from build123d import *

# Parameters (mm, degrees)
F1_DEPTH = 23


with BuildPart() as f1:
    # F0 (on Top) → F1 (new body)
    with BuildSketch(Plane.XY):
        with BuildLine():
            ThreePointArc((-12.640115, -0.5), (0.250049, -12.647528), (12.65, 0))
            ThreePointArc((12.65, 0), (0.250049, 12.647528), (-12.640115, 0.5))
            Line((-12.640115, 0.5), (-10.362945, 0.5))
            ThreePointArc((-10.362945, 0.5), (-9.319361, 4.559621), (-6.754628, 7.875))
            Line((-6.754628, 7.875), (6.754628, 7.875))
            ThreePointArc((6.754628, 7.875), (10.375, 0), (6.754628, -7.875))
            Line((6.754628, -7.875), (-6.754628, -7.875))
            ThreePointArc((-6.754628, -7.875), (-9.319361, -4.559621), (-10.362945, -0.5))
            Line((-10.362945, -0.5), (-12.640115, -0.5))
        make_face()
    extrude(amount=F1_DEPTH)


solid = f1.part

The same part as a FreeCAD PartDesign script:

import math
import FreeCAD as App
import Part
import Sketcher

V = App.Vector

doc = App.newDocument("Part")
params = doc.addObject("Spreadsheet::Sheet", "Params")
for row, (alias, value) in enumerate([
    ("sketch1_radius", "12.65 mm"),
    ("pad1_length", "23 mm"),
], start=1):
    params.set(f"A{row}", alias)
    params.set(f"B{row}", "=" + value)
    params.setAlias(f"B{row}", alias)

body = doc.addObject("PartDesign::Body", "Body")

sketch1 = body.newObject("Sketcher::SketchObject", "Sketch")
sketch1.AttachmentSupport = (doc.getObject("XY_Plane"), [""])
sketch1.MapMode = "FlatFace"
sketch1.addGeometry([
    Part.ArcOfCircle(Part.Circle(V(0, 0.000001, 0), V(0, 0, 1), 12.65), math.radians(-177.734752), math.radians(-0.000003)),
    Part.ArcOfCircle(Part.Circle(V(0, -0.000001, 0), V(0, 0, 1), 12.65), math.radians(0.000003), math.radians(177.734752)),
    Part.LineSegment(V(-12.640115, 0.5, 0), V(-10.362945, 0.5, 0)),
    Part.ArcOfCircle(Part.Circle(V(-0.000004, 0.000001, 0), V(0, 0, 1), 10.374997), math.radians(130.62069), math.radians(177.237694)),
    Part.LineSegment(V(-6.754628, 7.875, 0), V(6.754628, 7.875, 0)),
    Part.ArcOfCircle(Part.Circle(V(0, 0, 0), V(0, 0, 1), 10.375), math.radians(-49.379301), math.radians(49.379301)),
    Part.LineSegment(V(6.754628, -7.875, 0), V(-6.754628, -7.875, 0)),
    Part.ArcOfCircle(Part.Circle(V(-0.000004, -0.000001, 0), V(0, 0, 1), 10.374997), math.radians(-177.237694), math.radians(-130.62069)),
    Part.LineSegment(V(-10.362945, -0.5, 0), V(-12.640115, -0.5, 0)),
], False)
sketch1.addConstraint([
    Sketcher.Constraint("Tangent", 0, 2, 1, 1),
    Sketcher.Constraint("Coincident", 1, 2, 2, 1),
    Sketcher.Constraint("Coincident", 2, 2, 3, 2),
    Sketcher.Constraint("Coincident", 3, 1, 4, 1),
    Sketcher.Constraint("Coincident", 4, 2, 5, 2),
    Sketcher.Constraint("Coincident", 5, 1, 6, 1),
    Sketcher.Constraint("Coincident", 6, 2, 7, 2),
    Sketcher.Constraint("Coincident", 7, 1, 8, 1),
    Sketcher.Constraint("Coincident", 8, 2, 0, 1),
    Sketcher.Constraint("Horizontal", 2),
    Sketcher.Constraint("Horizontal", 4),
    Sketcher.Constraint("Horizontal", 6),
    Sketcher.Constraint("Horizontal", 8),
    Sketcher.Constraint("Coincident", 0, 3, -1, 1),
    Sketcher.Constraint("Coincident", 3, 3, -1, 1),
    Sketcher.Constraint("Coincident", 5, 3, -1, 1),
    Sketcher.Constraint("Coincident", 7, 3, -1, 1),
    Sketcher.Constraint("Equal", 0, 1),
    Sketcher.Constraint("Equal", 3, 7),
    Sketcher.Constraint("Symmetric", 3, 1, 5, 1, -1, 1),
    Sketcher.Constraint("PointOnObject", 0, 2, -1),
    Sketcher.Constraint("Vertical", 2, 2, 7, 1),
    Sketcher.Constraint("Radius", 0, 12.65),
    Sketcher.Constraint("Radius", 5, 10.375),
    Sketcher.Constraint("DistanceY", 7, 1, 2, 2, 1.0),
    Sketcher.Constraint("DistanceY", -1, 1, 3, 1, 7.875),
])
sketch1.setExpression("Constraints[22]", "Params.sketch1_radius")
pad1 = body.newObject("PartDesign::Pad", "Pad")
pad1.Profile = sketch1
pad1.setExpression("Length", "Params.pad1_length")

doc.recompute()
